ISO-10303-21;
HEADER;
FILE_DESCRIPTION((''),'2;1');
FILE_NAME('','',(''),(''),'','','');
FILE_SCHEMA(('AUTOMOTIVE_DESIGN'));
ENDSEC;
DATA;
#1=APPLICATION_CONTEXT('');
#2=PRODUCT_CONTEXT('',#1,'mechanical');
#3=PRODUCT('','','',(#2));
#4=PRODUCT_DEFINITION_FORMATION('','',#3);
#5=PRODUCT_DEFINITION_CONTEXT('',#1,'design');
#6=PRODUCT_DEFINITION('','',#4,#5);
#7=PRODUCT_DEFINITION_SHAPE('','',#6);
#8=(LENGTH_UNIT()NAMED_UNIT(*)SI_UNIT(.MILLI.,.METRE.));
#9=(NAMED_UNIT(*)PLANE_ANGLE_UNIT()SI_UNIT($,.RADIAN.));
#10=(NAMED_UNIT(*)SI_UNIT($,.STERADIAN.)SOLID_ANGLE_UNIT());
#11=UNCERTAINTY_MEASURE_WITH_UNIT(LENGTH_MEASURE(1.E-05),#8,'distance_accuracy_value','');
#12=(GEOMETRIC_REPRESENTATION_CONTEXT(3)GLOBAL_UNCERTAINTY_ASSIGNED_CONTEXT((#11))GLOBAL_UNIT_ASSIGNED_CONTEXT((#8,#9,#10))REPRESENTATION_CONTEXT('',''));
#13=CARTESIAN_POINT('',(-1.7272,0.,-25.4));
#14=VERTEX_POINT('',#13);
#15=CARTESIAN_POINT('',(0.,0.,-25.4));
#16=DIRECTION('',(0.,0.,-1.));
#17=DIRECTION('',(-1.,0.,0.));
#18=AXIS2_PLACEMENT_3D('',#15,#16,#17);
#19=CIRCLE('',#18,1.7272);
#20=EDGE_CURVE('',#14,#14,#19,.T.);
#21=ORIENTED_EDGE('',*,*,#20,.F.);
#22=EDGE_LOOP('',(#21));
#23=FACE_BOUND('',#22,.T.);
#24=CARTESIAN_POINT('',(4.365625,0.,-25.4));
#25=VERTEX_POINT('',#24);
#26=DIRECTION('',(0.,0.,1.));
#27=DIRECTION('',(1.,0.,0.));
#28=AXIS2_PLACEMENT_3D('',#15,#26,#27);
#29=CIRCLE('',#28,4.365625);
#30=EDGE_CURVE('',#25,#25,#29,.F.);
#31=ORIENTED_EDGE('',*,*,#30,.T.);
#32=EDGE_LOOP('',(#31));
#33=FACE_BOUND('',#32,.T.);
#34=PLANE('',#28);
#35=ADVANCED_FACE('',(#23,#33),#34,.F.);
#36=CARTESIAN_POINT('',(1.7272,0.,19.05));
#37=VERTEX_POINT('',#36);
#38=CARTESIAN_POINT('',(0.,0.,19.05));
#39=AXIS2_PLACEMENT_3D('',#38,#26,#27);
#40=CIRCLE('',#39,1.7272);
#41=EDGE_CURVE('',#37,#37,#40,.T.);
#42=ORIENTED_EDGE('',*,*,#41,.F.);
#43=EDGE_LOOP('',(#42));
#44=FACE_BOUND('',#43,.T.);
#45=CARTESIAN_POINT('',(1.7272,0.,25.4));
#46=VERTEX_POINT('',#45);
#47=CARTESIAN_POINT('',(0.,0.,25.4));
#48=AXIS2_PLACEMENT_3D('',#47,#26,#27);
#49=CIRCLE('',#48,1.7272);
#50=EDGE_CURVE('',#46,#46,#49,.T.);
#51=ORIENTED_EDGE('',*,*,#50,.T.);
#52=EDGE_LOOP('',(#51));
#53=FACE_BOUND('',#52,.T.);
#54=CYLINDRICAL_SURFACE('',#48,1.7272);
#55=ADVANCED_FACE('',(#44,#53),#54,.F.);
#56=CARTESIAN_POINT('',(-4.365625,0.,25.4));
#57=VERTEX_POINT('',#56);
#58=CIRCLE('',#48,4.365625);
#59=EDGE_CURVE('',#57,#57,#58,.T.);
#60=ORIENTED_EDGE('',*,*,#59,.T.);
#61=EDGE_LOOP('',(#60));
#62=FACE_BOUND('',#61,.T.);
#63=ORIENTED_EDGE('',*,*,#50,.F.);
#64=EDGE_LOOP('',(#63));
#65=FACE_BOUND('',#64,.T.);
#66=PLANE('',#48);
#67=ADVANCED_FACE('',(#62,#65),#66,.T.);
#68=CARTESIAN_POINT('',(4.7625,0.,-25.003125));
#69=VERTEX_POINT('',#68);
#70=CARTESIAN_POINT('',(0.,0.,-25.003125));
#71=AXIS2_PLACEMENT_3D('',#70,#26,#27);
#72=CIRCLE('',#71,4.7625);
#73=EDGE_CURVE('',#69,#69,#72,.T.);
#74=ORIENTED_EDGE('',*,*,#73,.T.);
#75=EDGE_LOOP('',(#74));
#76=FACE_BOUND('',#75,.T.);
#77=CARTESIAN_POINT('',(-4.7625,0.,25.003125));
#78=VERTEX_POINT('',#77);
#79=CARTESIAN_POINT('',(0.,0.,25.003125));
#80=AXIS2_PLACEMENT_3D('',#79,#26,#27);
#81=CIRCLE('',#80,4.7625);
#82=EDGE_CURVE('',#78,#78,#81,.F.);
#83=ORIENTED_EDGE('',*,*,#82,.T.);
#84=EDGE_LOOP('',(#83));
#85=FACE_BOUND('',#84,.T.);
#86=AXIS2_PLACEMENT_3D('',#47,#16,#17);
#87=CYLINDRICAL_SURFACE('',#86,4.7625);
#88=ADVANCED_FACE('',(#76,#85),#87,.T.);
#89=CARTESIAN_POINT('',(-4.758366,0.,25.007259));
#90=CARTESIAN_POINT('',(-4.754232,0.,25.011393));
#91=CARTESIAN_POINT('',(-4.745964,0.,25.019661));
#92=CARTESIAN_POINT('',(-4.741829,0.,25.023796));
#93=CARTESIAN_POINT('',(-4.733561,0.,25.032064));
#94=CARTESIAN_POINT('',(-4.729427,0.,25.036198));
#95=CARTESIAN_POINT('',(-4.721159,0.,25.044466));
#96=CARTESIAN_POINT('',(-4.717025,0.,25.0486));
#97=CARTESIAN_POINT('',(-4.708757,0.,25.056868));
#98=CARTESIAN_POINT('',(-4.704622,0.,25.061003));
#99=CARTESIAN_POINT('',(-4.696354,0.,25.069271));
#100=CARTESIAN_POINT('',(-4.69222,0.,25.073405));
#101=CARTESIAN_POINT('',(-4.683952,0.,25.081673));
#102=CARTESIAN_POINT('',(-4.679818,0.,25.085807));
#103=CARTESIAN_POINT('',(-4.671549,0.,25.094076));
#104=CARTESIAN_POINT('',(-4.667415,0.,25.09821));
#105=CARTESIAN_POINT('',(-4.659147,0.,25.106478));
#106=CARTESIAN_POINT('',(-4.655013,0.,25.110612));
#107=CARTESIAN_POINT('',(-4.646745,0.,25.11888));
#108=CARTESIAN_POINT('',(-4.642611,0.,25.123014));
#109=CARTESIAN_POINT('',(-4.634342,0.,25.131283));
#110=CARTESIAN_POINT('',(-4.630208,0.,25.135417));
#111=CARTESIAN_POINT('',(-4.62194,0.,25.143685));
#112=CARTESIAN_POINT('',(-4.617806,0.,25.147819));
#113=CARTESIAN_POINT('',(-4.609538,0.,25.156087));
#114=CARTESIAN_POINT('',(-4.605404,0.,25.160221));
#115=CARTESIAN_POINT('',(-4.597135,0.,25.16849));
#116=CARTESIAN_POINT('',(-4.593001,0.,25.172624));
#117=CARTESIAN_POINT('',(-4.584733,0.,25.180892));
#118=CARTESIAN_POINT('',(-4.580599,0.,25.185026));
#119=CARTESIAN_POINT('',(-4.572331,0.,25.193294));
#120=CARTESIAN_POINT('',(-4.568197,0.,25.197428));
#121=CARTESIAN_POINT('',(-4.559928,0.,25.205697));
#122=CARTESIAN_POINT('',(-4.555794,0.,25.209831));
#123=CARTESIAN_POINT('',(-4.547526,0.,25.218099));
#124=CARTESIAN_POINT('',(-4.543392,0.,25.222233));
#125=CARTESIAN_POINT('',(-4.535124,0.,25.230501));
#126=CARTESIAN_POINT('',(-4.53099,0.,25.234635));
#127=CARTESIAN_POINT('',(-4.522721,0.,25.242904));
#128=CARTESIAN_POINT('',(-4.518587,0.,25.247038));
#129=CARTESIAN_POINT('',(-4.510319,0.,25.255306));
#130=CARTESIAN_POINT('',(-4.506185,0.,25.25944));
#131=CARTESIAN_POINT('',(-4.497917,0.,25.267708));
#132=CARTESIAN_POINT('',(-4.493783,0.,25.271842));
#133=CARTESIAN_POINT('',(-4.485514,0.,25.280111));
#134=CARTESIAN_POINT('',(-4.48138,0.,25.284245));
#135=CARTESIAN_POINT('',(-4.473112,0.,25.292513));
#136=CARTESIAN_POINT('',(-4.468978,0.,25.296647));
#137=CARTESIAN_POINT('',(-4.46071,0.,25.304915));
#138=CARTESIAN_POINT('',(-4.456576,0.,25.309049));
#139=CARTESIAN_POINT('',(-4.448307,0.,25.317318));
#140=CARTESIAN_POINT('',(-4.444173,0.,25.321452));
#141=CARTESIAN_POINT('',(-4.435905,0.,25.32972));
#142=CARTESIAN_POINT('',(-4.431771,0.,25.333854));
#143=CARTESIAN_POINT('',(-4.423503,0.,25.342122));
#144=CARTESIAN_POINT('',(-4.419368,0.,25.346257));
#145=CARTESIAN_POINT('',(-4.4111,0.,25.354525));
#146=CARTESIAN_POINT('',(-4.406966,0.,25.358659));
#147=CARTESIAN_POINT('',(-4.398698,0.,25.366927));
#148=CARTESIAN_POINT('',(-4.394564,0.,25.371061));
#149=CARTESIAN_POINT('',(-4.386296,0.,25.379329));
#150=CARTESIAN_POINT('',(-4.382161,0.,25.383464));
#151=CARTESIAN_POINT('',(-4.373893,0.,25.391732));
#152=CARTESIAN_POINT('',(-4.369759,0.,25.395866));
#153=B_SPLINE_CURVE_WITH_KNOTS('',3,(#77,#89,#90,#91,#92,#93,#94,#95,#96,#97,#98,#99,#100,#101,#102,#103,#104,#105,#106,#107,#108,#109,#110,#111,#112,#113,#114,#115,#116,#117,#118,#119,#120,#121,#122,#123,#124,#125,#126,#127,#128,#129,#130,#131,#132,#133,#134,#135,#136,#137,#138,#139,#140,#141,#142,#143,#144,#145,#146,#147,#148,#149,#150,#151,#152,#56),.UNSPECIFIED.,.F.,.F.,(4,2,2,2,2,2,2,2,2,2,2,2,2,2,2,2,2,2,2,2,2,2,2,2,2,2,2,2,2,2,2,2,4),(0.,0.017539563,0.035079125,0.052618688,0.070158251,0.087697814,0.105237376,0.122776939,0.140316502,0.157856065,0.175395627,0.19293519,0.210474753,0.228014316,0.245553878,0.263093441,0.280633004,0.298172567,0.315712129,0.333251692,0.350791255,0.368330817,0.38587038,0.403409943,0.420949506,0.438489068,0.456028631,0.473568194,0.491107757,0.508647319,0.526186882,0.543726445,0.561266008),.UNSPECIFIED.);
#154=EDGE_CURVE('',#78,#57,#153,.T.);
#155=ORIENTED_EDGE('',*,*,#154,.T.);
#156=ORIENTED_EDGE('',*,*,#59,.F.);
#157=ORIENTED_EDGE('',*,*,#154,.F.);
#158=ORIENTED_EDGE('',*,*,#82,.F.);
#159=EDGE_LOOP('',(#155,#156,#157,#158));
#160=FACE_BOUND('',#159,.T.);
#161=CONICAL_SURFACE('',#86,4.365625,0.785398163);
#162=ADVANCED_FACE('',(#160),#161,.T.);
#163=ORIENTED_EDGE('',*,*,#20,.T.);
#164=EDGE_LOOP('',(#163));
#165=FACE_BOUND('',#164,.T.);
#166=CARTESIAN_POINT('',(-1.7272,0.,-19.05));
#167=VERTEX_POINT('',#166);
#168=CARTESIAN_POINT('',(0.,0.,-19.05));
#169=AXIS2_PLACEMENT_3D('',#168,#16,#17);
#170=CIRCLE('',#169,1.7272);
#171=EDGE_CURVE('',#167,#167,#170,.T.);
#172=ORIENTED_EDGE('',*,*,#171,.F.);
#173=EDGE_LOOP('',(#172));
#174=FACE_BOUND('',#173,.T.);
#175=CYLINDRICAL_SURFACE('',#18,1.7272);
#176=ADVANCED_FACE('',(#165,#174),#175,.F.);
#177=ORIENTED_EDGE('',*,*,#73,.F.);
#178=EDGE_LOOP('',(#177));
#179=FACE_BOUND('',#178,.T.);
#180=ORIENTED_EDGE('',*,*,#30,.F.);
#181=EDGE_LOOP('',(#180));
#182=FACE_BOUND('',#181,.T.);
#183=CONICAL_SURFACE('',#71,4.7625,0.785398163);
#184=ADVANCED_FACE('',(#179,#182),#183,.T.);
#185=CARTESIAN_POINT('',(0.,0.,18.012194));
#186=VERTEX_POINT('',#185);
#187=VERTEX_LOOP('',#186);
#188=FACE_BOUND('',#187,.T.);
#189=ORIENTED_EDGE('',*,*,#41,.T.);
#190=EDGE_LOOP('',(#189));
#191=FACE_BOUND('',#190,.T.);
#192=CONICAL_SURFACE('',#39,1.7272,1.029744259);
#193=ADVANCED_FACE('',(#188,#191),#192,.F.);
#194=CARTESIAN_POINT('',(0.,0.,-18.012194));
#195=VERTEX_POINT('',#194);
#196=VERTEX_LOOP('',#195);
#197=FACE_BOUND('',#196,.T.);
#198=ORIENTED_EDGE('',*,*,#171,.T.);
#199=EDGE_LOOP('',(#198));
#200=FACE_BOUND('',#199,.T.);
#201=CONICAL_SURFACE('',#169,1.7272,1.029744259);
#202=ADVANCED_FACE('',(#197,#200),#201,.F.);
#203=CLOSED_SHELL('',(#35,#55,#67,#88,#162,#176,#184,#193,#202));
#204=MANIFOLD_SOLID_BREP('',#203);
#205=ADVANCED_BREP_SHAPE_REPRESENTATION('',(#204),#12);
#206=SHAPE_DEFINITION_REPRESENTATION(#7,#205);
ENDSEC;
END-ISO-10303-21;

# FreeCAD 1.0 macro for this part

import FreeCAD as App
import Part
import Sketcher
Q = App.Units.Quantity


def edges_at(feature, points):
    """Names of the edges that pass closest to the given points."""
    edges = feature.Shape.Edges
    near = lambda p: min(range(len(edges)), key=lambda i: edges[i].distToShape(Part.Vertex(*p))[0])
    return sorted({f"Edge{near(p) + 1}" for p in points})

doc = App.newDocument("Part")
body = doc.addObject("PartDesign::Body", "Body")

sketch1 = body.newObject("Sketcher::SketchObject", "Sketch")
sketch1.AttachmentSupport = (doc.getObject("XY_Plane"), [""])
sketch1.MapMode = "FlatFace"
sketch1.addGeometry(Part.Circle(App.Vector(0, 0, 0), App.Vector(0, 0, 1), 4.8), False)
sketch1.addConstraint([
    Sketcher.Constraint("Coincident", 0, 3, -1, 1),
    Sketcher.Constraint("Diameter", 0, Q("0.375 in")),
])
pad1 = body.newObject("PartDesign::Pad", "Pad")
pad1.Profile = sketch1
pad1.Length = Q("2 in")
pad1.Midplane = True

sketch2 = body.newObject("Sketcher::SketchObject", "Sketch001")
sketch2.AttachmentSupport = (doc.getObject("XY_Plane"), [""])
sketch2.MapMode = "FlatFace"
sketch2.AttachmentOffset = App.Placement(App.Vector(0, 0, 1 * 25.4), App.Rotation())
sketch2.addGeometry(Part.Circle(App.Vector(0, 0, 0), App.Vector(0, 0, 1), 1.7), False)
sketch2.addConstraint([
    Sketcher.Constraint("Coincident", 0, 3, -1, 1),
    Sketcher.Constraint("Diameter", 0, Q("0.136 in")),
])
doc.recompute()
hole = body.newObject("PartDesign::Hole", "Hole")
hole.Profile = sketch2
hole.ThreadType = "None"
hole.Diameter = Q("0.136 in")
hole.DepthType = "Dimension"
hole.Depth = Q("0.25 in")
hole.DrillPoint = "Angled"
hole.DrillPointAngle = 118

sketch3 = body.newObject("Sketcher::SketchObject", "Sketch002")
sketch3.AttachmentSupport = (doc.getObject("XY_Plane"), [""])
sketch3.MapMode = "FlatFace"
sketch3.AttachmentOffset = App.Placement(App.Vector(0, 0, -1 * 25.4), App.Rotation())
sketch3.addGeometry(Part.Circle(App.Vector(0, 0, 0), App.Vector(0, 0, 1), 1.7), False)
sketch3.addConstraint([
    Sketcher.Constraint("Coincident", 0, 3, -1, 1),
    Sketcher.Constraint("Diameter", 0, Q("0.136 in")),
])
doc.recompute()
hole2 = body.newObject("PartDesign::Hole", "Hole001")
hole2.Profile = sketch3
hole2.ThreadType = "None"
hole2.Diameter = Q("0.136 in")
hole2.DepthType = "Dimension"
hole2.Depth = Q("0.25 in")
hole2.DrillPoint = "Angled"
hole2.DrillPointAngle = 118
hole2.Reversed = True
doc.recompute()

chamfer = body.newObject("PartDesign::Chamfer", "Chamfer")
chamfer.Base = (hole2, edges_at(hole2, [(-4.763, 0, -25.4), (-4.763, 0, 25.4)]))
chamfer.Size = Q("0.015625 in")

doc.recompute()
